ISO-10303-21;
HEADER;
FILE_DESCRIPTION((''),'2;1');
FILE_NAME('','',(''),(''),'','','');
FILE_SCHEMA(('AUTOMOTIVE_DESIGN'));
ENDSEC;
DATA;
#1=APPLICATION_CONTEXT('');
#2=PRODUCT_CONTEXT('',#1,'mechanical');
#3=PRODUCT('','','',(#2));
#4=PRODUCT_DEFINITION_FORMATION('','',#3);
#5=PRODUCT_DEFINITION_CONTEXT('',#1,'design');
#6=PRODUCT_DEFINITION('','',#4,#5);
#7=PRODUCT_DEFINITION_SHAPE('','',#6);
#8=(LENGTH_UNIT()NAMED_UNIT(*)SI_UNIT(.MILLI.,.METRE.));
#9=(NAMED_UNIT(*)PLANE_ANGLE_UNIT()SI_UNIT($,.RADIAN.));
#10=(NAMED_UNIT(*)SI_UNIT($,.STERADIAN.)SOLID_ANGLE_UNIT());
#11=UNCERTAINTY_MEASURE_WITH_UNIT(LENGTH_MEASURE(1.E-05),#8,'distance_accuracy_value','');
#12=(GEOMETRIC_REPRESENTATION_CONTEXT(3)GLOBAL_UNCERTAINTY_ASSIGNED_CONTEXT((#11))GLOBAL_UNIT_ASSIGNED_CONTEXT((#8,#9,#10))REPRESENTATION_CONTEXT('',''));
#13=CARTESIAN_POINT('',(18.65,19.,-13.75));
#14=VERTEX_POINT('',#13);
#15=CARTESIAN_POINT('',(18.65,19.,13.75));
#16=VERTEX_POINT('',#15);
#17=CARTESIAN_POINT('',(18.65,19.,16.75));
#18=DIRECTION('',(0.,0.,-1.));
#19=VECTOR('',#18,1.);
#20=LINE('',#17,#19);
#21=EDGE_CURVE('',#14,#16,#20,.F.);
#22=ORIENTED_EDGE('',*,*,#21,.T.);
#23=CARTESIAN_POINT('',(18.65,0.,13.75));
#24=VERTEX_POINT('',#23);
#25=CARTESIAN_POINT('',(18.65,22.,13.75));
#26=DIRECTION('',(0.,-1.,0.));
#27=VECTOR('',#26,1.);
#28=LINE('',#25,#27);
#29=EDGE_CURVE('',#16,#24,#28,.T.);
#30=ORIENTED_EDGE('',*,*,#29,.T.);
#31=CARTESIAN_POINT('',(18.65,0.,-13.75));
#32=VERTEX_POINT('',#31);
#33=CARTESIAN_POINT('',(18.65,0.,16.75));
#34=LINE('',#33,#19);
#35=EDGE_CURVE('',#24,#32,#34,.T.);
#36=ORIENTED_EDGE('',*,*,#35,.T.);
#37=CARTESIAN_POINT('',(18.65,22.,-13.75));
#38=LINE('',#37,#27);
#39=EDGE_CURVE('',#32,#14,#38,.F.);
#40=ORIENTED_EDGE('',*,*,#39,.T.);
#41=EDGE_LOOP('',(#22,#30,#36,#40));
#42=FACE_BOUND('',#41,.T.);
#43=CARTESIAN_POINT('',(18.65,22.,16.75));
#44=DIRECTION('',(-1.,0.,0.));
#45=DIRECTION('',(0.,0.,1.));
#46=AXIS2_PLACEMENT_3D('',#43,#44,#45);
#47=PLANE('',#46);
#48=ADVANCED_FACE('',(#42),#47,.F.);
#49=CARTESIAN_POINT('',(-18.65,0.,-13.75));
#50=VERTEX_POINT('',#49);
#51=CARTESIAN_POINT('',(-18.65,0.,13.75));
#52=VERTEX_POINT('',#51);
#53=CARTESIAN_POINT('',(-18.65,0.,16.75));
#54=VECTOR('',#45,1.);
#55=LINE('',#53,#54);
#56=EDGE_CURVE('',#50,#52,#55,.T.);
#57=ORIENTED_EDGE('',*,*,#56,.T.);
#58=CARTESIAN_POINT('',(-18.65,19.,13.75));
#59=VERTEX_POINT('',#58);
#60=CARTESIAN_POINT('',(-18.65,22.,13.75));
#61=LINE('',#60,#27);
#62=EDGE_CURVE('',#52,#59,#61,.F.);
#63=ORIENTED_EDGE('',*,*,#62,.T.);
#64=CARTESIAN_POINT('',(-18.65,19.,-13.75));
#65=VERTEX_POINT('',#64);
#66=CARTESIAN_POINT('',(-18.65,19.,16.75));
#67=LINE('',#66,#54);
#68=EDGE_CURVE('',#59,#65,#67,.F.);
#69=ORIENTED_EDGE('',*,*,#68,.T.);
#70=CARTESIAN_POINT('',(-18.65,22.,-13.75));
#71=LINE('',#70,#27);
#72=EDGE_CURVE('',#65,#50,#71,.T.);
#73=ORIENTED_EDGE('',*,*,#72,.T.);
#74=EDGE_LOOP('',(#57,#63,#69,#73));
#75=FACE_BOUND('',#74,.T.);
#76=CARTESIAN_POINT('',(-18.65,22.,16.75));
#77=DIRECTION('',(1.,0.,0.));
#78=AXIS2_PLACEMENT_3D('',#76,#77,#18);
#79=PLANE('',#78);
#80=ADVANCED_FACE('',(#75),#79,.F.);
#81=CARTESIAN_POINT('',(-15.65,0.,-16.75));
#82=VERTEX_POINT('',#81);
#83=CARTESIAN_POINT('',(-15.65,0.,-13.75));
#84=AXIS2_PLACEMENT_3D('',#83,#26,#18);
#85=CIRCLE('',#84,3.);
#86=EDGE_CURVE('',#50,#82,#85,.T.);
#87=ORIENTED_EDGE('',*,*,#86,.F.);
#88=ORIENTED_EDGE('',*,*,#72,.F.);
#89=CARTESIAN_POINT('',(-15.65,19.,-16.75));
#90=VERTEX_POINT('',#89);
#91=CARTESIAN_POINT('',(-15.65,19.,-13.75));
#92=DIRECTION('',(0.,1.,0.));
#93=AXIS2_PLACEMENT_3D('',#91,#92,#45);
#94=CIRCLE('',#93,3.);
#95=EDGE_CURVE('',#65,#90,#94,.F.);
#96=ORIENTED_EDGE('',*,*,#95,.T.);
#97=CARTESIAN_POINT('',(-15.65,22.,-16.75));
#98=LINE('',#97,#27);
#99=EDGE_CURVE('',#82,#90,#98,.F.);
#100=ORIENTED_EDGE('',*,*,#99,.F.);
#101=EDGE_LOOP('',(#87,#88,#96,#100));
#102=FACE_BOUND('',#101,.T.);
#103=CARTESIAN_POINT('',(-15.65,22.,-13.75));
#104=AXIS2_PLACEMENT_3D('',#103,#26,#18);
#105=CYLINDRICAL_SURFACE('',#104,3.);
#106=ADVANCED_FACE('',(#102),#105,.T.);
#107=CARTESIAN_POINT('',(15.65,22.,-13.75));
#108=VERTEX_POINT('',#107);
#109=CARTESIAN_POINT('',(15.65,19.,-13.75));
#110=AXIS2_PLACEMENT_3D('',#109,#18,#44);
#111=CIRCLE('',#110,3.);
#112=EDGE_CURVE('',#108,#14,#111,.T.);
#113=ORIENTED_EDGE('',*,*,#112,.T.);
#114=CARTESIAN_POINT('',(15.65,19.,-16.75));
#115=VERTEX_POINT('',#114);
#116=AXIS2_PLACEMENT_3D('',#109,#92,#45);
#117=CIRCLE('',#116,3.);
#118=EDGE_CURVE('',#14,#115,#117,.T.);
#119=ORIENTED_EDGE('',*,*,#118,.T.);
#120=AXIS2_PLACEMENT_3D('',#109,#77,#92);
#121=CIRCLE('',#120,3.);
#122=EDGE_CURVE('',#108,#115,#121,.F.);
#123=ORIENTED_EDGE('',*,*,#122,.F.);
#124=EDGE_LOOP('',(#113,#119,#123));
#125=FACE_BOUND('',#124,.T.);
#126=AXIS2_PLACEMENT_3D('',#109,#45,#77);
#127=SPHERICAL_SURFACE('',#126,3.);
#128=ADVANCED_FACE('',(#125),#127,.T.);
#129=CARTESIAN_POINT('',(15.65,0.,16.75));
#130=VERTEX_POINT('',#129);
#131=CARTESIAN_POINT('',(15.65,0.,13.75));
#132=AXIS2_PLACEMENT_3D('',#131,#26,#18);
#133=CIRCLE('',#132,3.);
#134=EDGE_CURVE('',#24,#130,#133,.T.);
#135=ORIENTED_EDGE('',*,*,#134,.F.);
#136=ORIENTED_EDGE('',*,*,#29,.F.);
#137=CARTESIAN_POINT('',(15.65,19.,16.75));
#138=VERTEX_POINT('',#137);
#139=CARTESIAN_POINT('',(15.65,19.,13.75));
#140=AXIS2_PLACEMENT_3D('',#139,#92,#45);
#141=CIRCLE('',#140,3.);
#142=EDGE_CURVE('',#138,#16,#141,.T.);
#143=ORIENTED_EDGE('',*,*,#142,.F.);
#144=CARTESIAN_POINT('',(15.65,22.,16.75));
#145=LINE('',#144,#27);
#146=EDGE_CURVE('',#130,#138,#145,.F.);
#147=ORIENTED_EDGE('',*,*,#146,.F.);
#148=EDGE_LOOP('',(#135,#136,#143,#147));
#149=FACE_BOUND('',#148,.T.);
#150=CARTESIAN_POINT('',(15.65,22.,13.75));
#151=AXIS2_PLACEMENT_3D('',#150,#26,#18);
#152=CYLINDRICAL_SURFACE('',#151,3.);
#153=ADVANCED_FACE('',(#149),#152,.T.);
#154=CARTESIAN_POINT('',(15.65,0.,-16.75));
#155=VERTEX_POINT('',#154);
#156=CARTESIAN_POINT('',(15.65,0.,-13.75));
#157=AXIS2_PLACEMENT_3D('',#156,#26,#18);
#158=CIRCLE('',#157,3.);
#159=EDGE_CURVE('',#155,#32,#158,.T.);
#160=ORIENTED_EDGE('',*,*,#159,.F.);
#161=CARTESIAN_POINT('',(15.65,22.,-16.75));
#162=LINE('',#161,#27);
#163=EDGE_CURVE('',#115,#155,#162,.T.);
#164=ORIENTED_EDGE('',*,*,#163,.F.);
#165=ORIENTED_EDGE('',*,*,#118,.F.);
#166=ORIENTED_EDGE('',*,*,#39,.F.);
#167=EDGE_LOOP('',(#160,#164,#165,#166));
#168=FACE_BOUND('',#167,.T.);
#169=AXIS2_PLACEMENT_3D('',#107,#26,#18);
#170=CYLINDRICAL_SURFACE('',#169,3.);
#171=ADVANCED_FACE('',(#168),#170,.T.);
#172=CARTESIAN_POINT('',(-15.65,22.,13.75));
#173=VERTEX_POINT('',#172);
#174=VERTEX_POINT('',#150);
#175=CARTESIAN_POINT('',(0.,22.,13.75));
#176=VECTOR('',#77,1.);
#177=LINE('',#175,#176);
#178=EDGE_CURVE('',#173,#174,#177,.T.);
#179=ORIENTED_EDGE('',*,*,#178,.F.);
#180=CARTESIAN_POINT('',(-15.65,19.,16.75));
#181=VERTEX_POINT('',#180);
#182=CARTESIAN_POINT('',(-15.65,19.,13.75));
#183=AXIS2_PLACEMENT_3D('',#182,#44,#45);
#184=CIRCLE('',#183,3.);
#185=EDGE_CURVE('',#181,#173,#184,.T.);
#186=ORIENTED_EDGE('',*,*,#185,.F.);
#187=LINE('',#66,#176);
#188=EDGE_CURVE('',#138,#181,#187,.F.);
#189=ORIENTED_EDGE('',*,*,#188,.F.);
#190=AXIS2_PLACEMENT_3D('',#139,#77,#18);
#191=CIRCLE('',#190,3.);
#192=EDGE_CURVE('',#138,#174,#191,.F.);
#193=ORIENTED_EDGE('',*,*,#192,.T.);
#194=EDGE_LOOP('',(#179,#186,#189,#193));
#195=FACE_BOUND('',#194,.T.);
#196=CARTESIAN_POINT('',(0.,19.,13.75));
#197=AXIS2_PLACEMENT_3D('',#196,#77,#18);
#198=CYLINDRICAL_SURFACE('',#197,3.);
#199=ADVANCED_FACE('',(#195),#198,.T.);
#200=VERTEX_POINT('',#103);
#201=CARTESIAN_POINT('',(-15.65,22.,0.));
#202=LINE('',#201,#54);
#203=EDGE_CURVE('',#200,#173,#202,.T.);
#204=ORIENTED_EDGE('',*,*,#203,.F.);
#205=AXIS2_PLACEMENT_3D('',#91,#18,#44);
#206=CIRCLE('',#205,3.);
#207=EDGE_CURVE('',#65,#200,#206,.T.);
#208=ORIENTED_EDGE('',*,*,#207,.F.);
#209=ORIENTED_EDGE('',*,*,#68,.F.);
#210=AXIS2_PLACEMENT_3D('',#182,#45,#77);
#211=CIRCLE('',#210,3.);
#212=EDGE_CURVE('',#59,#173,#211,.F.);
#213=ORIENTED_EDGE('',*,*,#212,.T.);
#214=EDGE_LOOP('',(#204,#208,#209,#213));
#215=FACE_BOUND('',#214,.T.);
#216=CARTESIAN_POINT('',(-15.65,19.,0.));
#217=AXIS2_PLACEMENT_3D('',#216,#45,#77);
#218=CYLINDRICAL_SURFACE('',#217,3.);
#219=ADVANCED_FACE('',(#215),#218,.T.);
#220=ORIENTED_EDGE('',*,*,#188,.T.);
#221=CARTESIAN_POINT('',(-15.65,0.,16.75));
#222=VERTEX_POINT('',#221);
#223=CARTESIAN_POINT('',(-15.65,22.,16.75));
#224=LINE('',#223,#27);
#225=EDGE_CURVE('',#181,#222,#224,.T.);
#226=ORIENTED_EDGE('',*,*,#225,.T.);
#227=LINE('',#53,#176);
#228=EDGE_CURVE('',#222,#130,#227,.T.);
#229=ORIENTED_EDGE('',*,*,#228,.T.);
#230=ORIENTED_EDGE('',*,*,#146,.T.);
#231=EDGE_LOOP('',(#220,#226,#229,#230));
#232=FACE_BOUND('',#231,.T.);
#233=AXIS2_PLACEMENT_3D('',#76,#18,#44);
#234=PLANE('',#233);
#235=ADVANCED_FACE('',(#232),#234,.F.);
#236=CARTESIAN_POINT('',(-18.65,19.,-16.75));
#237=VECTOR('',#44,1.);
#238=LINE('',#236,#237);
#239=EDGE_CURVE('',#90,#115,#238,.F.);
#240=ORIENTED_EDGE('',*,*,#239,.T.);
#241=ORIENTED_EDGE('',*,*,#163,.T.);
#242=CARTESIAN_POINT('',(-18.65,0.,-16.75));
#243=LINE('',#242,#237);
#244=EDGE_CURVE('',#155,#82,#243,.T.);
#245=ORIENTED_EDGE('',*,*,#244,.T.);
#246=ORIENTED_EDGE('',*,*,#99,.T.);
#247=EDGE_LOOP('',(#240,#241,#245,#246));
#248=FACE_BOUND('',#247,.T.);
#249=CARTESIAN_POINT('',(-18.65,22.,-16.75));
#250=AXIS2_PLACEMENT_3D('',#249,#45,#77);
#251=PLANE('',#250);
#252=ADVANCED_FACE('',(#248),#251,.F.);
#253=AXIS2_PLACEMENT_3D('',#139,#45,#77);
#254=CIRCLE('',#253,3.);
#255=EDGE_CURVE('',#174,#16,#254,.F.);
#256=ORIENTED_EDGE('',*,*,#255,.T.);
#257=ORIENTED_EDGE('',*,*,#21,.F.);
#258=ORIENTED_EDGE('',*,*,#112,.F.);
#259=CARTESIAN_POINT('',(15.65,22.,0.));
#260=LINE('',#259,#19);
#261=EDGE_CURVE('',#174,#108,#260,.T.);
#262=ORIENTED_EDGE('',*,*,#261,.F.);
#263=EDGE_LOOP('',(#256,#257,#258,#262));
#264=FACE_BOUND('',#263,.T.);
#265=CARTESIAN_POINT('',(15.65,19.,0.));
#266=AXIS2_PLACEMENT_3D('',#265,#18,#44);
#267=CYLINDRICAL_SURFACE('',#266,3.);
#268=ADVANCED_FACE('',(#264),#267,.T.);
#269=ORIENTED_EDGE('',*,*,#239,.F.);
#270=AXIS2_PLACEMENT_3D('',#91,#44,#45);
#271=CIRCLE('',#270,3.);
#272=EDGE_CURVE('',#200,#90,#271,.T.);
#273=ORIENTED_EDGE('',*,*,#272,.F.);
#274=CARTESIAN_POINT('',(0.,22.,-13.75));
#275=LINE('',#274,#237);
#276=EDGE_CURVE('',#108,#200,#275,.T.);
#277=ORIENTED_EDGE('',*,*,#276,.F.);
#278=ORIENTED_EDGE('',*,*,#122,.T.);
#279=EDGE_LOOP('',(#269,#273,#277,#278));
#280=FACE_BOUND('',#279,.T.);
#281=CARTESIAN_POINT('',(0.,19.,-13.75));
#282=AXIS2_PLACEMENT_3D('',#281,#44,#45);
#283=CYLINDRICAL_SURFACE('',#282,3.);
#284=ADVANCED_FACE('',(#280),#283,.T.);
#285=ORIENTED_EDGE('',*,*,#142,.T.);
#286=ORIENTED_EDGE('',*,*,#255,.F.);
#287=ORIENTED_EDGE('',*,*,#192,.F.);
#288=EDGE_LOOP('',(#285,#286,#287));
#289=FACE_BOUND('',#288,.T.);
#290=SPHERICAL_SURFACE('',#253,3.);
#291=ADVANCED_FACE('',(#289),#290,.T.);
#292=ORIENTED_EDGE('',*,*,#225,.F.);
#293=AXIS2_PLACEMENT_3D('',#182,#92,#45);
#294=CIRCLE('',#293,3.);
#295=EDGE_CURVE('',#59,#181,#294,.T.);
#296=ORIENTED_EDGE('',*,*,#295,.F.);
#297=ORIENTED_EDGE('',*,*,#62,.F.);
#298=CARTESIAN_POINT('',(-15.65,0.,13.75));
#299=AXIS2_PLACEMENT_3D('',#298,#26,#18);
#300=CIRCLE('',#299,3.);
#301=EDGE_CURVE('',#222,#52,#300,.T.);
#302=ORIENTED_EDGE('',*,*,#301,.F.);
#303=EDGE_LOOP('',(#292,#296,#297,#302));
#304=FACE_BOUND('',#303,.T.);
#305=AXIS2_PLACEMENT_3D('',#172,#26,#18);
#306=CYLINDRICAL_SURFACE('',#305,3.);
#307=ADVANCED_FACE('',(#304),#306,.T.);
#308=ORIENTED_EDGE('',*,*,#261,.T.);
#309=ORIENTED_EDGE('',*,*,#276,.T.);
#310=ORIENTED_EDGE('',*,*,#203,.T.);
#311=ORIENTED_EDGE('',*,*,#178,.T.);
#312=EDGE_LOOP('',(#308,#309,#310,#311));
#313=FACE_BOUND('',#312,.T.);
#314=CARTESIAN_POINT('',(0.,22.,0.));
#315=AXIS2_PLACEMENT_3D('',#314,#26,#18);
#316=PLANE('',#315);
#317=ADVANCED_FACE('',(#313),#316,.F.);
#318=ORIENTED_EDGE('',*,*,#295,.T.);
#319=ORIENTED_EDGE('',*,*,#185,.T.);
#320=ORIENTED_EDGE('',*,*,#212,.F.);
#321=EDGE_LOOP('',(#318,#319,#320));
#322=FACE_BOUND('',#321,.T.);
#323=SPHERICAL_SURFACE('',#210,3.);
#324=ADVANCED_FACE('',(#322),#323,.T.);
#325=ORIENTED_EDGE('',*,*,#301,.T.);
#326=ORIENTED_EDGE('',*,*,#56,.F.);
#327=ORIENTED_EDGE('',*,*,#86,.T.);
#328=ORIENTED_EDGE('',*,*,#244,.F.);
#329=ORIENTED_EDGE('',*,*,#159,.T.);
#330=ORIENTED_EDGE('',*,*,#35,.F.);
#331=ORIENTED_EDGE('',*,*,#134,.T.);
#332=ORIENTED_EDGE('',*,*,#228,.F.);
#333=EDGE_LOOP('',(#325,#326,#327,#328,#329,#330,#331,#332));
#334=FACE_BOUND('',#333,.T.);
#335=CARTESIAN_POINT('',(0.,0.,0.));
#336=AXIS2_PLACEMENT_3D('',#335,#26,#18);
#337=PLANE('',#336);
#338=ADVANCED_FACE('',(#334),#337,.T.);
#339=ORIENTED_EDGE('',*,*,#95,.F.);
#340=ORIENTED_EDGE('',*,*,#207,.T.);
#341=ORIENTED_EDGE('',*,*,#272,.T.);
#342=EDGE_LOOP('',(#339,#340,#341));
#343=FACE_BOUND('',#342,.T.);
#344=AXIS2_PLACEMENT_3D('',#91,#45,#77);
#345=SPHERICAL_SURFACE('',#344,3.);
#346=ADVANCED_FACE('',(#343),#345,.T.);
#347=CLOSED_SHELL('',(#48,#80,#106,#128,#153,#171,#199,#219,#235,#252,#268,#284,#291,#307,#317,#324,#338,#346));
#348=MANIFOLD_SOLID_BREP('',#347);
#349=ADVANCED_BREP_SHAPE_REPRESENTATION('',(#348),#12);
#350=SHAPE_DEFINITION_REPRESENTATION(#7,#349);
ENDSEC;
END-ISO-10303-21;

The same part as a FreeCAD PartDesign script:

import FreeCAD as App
import Part
import Sketcher
from FreeCAD import Vector


def edges_at(feature, points):
    """Names of the edges that pass closest to the given points."""
    edges = feature.Shape.Edges
    near = lambda p: min(range(len(edges)), key=lambda i: edges[i].distToShape(Part.Vertex(*p))[0])
    return sorted({f"Edge{near(p) + 1}" for p in points})


def add_polygon(sketch, points):
    """Adds a closed chain of lines whose ends are joined by coincident constraints."""
    first, n = sketch.GeometryCount, len(points)
    for a, b in zip(points, points[1:] + points[:1]):
        sketch.addGeometry(Part.LineSegment(App.Vector(*a, 0), App.Vector(*b, 0)), False)
    for i in range(n):
        sketch.addConstraint(Sketcher.Constraint("Coincident", first + i, 2, first + (i + 1) % n, 1))

doc = App.newDocument("Part")
params = doc.addObject("Spreadsheet::Sheet", "Params")
for row, (alias, value) in enumerate([
    ("sketch1_width", "37.3 mm"),
    ("sketch1_height", "33.5 mm"),
    ("pad1_length", "22 mm"),
    ("fillet_radius", "3 mm"),
], start=1):
    params.set(f"A{row}", alias)
    params.set(f"B{row}", "=" + value)
    params.setAlias(f"B{row}", alias)

body = doc.addObject("PartDesign::Body", "Body")

# Sketch on XZ plane
sketch1 = doc.addObject("Sketcher::SketchObject", "Sketch")
body.addObject(sketch1)
sketch1.AttachmentSupport = (doc.XZ_Plane, [""])
sketch1.MapMode = "FlatFace"
add_polygon(sketch1, [(-18.65, -16.75), (-18.65, 16.75), (18.65, 16.75), (18.65, -16.75)])  # lines 0-3
sketch1.addConstraint([
    Sketcher.Constraint("Vertical", 0),
    Sketcher.Constraint("Horizontal", 1),
    Sketcher.Constraint("Vertical", 2),
    Sketcher.Constraint("Horizontal", 3),
    Sketcher.Constraint("Symmetric", 0, 2, 2, 2, -1, 1),
    Sketcher.Constraint("DistanceX", 1, 1, 1, 2, 37.3),
    Sketcher.Constraint("DistanceY", 0, 1, 0, 2, 33.5),
])
sketch1.setExpression("Constraints[9]", "Params.sketch1_width")
sketch1.setExpression("Constraints[10]", "Params.sketch1_height")
pad1 = doc.addObject("PartDesign::Pad", "Pad")
body.addObject(pad1)
pad1.Profile = sketch1
pad1.setExpression("Length", "Params.pad1_length")
pad1.Reversed = True
doc.recompute()

fillet = doc.addObject("PartDesign::Fillet", "Fillet")
body.addObject(fillet)
fillet.Base = (pad1, edges_at(pad1, [
    (-18.65, 22, 0),
    (0, 22, 16.75),
    (18.65, 22, 0),
    (0, 22, -16.75),
    (18.65, 11, 16.75),
    (-18.65, 11, 16.75),
    (-18.65, 11, -16.75),
    (18.65, 11, -16.75),
]))
fillet.setExpression("Radius", "Params.fillet_radius")

doc.recompute()
